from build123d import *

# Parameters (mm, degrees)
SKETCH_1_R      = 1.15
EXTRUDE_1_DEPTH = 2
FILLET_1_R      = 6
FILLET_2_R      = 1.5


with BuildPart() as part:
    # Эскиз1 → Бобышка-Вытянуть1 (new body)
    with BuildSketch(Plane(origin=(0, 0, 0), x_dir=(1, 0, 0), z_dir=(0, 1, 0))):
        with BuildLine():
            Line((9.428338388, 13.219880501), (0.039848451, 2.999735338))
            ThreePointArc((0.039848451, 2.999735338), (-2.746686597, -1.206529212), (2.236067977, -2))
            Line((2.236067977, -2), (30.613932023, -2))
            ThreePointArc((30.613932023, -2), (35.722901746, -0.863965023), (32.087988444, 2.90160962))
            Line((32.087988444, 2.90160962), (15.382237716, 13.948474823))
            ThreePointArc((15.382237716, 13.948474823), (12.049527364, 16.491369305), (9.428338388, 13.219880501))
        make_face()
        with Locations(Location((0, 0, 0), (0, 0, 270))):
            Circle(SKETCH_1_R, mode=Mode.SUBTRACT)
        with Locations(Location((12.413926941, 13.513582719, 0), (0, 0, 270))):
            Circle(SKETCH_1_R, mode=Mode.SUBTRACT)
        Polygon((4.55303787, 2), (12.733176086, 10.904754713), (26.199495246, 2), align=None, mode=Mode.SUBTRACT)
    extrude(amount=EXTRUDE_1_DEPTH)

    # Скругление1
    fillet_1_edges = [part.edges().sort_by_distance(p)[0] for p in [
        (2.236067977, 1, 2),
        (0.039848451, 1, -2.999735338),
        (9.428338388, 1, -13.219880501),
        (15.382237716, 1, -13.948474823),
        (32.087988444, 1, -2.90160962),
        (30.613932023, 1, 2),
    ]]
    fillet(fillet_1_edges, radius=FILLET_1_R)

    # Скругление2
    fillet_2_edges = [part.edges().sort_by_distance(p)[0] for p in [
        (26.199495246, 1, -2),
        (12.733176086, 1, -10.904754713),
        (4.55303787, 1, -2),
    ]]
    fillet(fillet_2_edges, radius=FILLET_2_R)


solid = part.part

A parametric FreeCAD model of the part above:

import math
import FreeCAD as App
import Part
import Sketcher

V = App.Vector


def edges_at(feature, points):
    """Names of the edges that pass closest to the given points."""
    edges = feature.Shape.Edges
    near = lambda p: min(range(len(edges)), key=lambda i: edges[i].distToShape(Part.Vertex(*p))[0])
    return sorted({f"Edge{near(p) + 1}" for p in points})


def add_polygon(sketch, points):
    """Adds a closed chain of lines whose ends are joined by coincident constraints."""
    first, n = sketch.GeometryCount, len(points)
    for a, b in zip(points, points[1:] + points[:1]):
        sketch.addGeometry(Part.LineSegment(App.Vector(*a, 0), App.Vector(*b, 0)), False)
    for i in range(n):
        sketch.addConstraint(Sketcher.Constraint("Coincident", first + i, 2, first + (i + 1) % n, 1))

doc = App.newDocument("Part")
params = doc.addObject("Spreadsheet::Sheet", "Params")
for row, (alias, value) in enumerate([
    ("sketch1_radius", "3 mm"),
    ("sketch1_diameter", "2.3 mm"),
    ("pad1_length", "2 mm"),
    ("fillet_radius", "6 mm"),
    ("fillet2_radius", "1.5 mm"),
], start=1):
    params.set(f"A{row}", alias)
    params.set(f"B{row}", "=" + value)
    params.setAlias(f"B{row}", alias)

body = doc.addObject("PartDesign::Body", "Body")

# Sketch on XZ plane
sketch1 = body.newObject("Sketcher::SketchObject", "Sketch")
sketch1.AttachmentSupport = (doc.getObject("XZ_Plane"), [""])
sketch1.MapMode = "FlatFace"
sketch1.addGeometry(Part.LineSegment(V(9.4, -13.2, 0), V(0, -3, 0)), False)  # 0
sketch1.addGeometry(Part.ArcOfCircle(Part.Circle(V(0, 0, 0), V(0, 0, 1), 3), math.radians(42), math.radians(271)), False)  # 1
sketch1.addGeometry(Part.LineSegment(V(2.2, 2, 0), V(30.6, 2, 0)), False)  # 2
sketch1.addGeometry(Part.ArcOfCircle(Part.Circle(V(32.9, 0, 0), V(0, 0, 1), 3), math.radians(-105), math.radians(138)), False)  # 3
sketch1.addGeometry(Part.LineSegment(V(32.1, -2.9, 0), V(15.4, -13.9, 0)), False)  # 4
sketch1.addGeometry(Part.ArcOfCircle(Part.Circle(V(12.4, -13.5, 0), V(0, 0, 1), 3), math.radians(174), math.radians(352)), False)  # 5
sketch1.addGeometry(Part.Circle(V(0, 0, 0), V(0, 0, 1), 1.1), False)  # 6
add_polygon(sketch1, [(26.2, -2), (4.6, -2), (12.7, -10.9)])  # lines 7-9
sketch1.addGeometry(Part.Circle(V(12.4, -13.5, 0), V(0, 0, 1), 1.1), False)  # 10
sketch1.addConstraint([
    Sketcher.Constraint("Coincident", 0, 2, 1, 2),
    Sketcher.Constraint("Coincident", 1, 1, 2, 1),
    Sketcher.Constraint("Coincident", 2, 2, 3, 2),
    Sketcher.Constraint("Coincident", 3, 1, 4, 1),
    Sketcher.Constraint("Coincident", 4, 2, 5, 2),
    Sketcher.Constraint("Coincident", 5, 1, 0, 1),
    Sketcher.Constraint("Horizontal", 2),
    Sketcher.Constraint("Horizontal", 7),
    Sketcher.Constraint("Coincident", 1, 3, -1, 1),
    Sketcher.Constraint("Coincident", 6, 3, -1, 1),
    Sketcher.Constraint("Coincident", 10, 3, 5, 3),
    Sketcher.Constraint("Equal", 1, 3),
    Sketcher.Constraint("Equal", 3, 5),
    Sketcher.Constraint("Equal", 6, 10),
    Sketcher.Constraint("PointOnObject", 3, 3, -1),
    Sketcher.Constraint("Parallel", 0, 8),
    Sketcher.Constraint("Parallel", 4, 9),
    Sketcher.Constraint("Radius", 1, 3.0),
    Sketcher.Constraint("Diameter", 6, 2.3),
    Sketcher.Constraint("DistanceY", -1, 1, 1, 1, 2.0),
    Sketcher.Constraint("DistanceY", 7, 2, -1, 1, 2.0),
    Sketcher.Constraint("DistanceX", -1, 1, 3, 3, 32.85),
    Sketcher.Constraint("DistanceX", 5, 1, 4, 2, 5.953899),
    Sketcher.Constraint("DistanceX", 7, 2, 5, 1, 4.875301),
    Sketcher.Constraint("DistanceX", 7, 2, 7, 1, 21.646457),
    Sketcher.Constraint("DistanceX", -1, 1, 0, 2, 0.039848),
    Sketcher.Constraint("DistanceX", -1, 1, 3, 1, 32.087988),
    Sketcher.Constraint("DistanceX", -1, 1, 5, 1, 9.428338),
    Sketcher.Constraint("DistanceY", 5, 1, -1, 1, 13.219881),
    Sketcher.Constraint("DistanceX", 0, 2, 10, 3, 12.374078),
])
sketch1.setExpression("Constraints[20]", "Params.sketch1_radius")
sketch1.setExpression("Constraints[21]", "Params.sketch1_diameter")
pad1 = body.newObject("PartDesign::Pad", "Pad")
pad1.Profile = sketch1
pad1.setExpression("Length", "Params.pad1_length")
pad1.Reversed = True
doc.recompute()

fillet = body.newObject("PartDesign::Fillet", "Fillet")
fillet.Base = (pad1, edges_at(pad1, [
    (2.236, 1, 2),
    (0.04, 1, -3),
    (9.428, 1, -13.22),
    (15.382, 1, -13.948),
    (32.088, 1, -2.902),
    (30.614, 1, 2),
]))
fillet.setExpression("Radius", "Params.fillet_radius")
doc.recompute()

fillet2 = body.newObject("PartDesign::Fillet", "Fillet001")
fillet2.Base = (fillet, edges_at(fillet, [(26.199, 1, -2), (12.733, 1, -10.905), (4.553, 1, -2)]))
fillet2.setExpression("Radius", "Params.fillet2_radius")

doc.recompute()
